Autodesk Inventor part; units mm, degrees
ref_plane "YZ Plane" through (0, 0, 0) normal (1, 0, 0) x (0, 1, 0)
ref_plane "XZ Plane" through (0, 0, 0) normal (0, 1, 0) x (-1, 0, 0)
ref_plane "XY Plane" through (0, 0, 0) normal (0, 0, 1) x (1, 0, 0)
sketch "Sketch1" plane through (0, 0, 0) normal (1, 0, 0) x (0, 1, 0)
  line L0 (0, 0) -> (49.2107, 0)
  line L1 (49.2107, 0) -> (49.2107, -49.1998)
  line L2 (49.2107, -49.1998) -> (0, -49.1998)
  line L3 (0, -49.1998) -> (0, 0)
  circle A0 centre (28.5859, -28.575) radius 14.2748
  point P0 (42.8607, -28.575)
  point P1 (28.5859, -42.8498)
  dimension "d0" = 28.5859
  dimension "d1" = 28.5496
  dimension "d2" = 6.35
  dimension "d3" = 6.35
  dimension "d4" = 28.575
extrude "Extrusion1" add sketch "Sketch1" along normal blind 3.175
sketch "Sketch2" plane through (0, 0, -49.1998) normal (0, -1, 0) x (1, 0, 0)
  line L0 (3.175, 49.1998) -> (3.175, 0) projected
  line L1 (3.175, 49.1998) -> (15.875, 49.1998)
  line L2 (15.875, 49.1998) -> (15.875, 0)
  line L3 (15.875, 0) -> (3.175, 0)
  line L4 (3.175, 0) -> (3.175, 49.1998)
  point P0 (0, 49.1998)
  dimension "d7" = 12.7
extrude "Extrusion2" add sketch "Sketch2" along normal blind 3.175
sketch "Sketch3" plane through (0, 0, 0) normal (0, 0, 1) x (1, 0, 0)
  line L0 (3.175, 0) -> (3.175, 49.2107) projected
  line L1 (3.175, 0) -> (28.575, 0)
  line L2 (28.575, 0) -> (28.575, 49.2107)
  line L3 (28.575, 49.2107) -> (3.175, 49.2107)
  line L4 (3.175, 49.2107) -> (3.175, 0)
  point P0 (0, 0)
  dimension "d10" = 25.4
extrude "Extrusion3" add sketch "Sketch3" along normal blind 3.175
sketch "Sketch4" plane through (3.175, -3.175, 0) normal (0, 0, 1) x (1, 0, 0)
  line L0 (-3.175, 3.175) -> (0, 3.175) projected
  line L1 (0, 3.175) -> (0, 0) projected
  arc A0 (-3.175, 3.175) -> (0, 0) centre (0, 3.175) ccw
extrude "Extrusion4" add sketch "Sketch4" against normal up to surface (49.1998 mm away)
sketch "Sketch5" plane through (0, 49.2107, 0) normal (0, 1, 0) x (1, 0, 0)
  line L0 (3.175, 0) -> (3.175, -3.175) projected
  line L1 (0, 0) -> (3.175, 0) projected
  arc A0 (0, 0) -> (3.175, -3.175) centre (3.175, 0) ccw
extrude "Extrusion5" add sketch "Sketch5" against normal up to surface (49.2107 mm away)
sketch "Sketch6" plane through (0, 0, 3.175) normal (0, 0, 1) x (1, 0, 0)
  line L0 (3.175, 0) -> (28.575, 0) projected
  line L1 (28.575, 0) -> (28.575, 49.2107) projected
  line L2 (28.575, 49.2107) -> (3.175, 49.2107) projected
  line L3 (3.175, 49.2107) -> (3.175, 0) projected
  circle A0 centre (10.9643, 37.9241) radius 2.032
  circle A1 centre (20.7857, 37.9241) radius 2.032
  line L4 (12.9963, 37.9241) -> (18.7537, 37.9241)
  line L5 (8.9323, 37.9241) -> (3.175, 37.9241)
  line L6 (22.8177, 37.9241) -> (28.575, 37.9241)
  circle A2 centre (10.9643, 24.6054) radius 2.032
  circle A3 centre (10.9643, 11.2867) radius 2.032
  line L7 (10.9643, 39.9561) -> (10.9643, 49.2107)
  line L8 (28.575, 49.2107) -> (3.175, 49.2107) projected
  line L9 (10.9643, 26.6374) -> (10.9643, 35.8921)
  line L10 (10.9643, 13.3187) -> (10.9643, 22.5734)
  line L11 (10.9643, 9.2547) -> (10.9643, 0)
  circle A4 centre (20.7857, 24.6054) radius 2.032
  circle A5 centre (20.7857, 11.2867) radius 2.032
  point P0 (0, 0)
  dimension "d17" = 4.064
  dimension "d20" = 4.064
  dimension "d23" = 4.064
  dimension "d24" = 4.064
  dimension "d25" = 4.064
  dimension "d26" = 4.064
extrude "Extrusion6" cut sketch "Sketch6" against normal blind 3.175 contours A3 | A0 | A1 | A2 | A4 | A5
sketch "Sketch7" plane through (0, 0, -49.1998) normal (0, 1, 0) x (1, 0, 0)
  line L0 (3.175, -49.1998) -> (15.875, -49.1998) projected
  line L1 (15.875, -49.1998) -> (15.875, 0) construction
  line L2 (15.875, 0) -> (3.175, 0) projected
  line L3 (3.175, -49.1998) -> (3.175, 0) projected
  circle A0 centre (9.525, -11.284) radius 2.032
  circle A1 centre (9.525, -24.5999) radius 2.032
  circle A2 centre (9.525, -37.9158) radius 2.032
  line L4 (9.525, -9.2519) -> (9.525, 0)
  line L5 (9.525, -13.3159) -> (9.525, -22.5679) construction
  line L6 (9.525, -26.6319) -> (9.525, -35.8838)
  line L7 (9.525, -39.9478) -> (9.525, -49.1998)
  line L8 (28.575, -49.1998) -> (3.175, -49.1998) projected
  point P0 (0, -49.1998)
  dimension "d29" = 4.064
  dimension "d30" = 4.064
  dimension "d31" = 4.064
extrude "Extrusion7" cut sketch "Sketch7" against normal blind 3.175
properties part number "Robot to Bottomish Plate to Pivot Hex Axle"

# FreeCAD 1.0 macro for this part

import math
import FreeCAD as App
import Part
import Sketcher

V = App.Vector
Q = App.Units.Quantity

doc = App.newDocument("Part")
body = doc.addObject("PartDesign::Body", "Body")
body.AllowCompound = True

# Sketch on YZ plane
sketch1 = body.newObject("Sketcher::SketchObject", "Sketch")
sketch1.AttachmentSupport = (doc.getObject("YZ_Plane"), [""])
sketch1.MapMode = "FlatFace"
sketch1.addGeometry(Part.LineSegment(V(49, 0, 0), V(0, 0, 0)), False)
sketch1.addGeometry(Part.LineSegment(V(0, 0, 0), V(0, -49, 0)), False)
sketch1.addGeometry(Part.LineSegment(V(0, -49, 0), V(49, -49, 0)), False)
sketch1.addGeometry(Part.LineSegment(V(49, -49, 0), V(49, 0, 0)), False)
sketch1.addGeometry(Part.Circle(V(29, -29, 0), V(0, 0, 1), 14), False)
sketch1.addConstraint(Sketcher.Constraint("Coincident", 0, 2, 1, 1))
sketch1.addConstraint(Sketcher.Constraint("Coincident", 1, 2, 2, 1))
sketch1.addConstraint(Sketcher.Constraint("Coincident", 2, 2, 3, 1))
sketch1.addConstraint(Sketcher.Constraint("Coincident", 3, 2, 0, 1))
sketch1.addConstraint(Sketcher.Constraint("Horizontal", 0))
sketch1.addConstraint(Sketcher.Constraint("Vertical", 1))
sketch1.addConstraint(Sketcher.Constraint("Horizontal", 2))
sketch1.addConstraint(Sketcher.Constraint("Vertical", 3))
sketch1.addConstraint(Sketcher.Constraint("Coincident", 0, 2, -1, 1))
sketch1.addConstraint(Sketcher.Constraint("Diameter", 4, Q("1.124 in")))
sketch1.addConstraint(Sketcher.Constraint("DistanceY", 4, 3, -1, 1, Q("1.125 in")))
sketch1.addConstraint(Sketcher.Constraint("DistanceY", 1, 2, 1, 1, Q("1.937 in")))
sketch1.addConstraint(Sketcher.Constraint("DistanceX", -1, 1, 4, 3, 28.586))
sketch1.addConstraint(Sketcher.Constraint("DistanceX", 4, 3, 2, 2, Q("0.812 in")))
pad1 = body.newObject("PartDesign::Pad", "Pad")
pad1.Profile = sketch1
pad1.Length = Q("0.125 in")

# Sketch on XZ plane
sketch2 = body.newObject("Sketcher::SketchObject", "Sketch001")
sketch2.AttachmentSupport = (doc.getObject("XZ_Plane"), [""])
sketch2.MapMode = "FlatFace"
sketch2.addGeometry(Part.LineSegment(V(16, 0, 0), V(3, 0, 0)), False)
sketch2.addGeometry(Part.LineSegment(V(3, 0, 0), V(3, -49, 0)), False)
sketch2.addGeometry(Part.LineSegment(V(3, -49, 0), V(16, -49, 0)), False)
sketch2.addGeometry(Part.LineSegment(V(16, -49, 0), V(16, 0, 0)), False)
sketch2.addConstraint(Sketcher.Constraint("Coincident", 0, 2, 1, 1))
sketch2.addConstraint(Sketcher.Constraint("Coincident", 1, 2, 2, 1))
sketch2.addConstraint(Sketcher.Constraint("Coincident", 2, 2, 3, 1))
sketch2.addConstraint(Sketcher.Constraint("Coincident", 3, 2, 0, 1))
sketch2.addConstraint(Sketcher.Constraint("Horizontal", 0))
sketch2.addConstraint(Sketcher.Constraint("Vertical", 1))
sketch2.addConstraint(Sketcher.Constraint("Horizontal", 2))
sketch2.addConstraint(Sketcher.Constraint("Vertical", 3))
sketch2.addConstraint(Sketcher.Constraint("PointOnObject", 0, 2, -1))
sketch2.addConstraint(Sketcher.Constraint("DistanceX", 0, 2, 0, 1, Q("0.5 in")))
sketch2.addConstraint(Sketcher.Constraint("DistanceY", 1, 2, 1, 1, Q("1.937 in")))
sketch2.addConstraint(Sketcher.Constraint("DistanceX", -1, 1, 0, 2, Q("0.125 in")))
pad2 = body.newObject("PartDesign::Pad", "Pad001")
pad2.Profile = sketch2
pad2.Length = Q("0.125 in")

# Sketch on XY plane
sketch3 = body.newObject("Sketcher::SketchObject", "Sketch002")
sketch3.AttachmentSupport = (doc.getObject("XY_Plane"), [""])
sketch3.MapMode = "FlatFace"
sketch3.addGeometry(Part.LineSegment(V(3, 49, 0), V(3, 0, 0)), False)
sketch3.addGeometry(Part.LineSegment(V(3, 0, 0), V(29, 0, 0)), False)
sketch3.addGeometry(Part.LineSegment(V(29, 0, 0), V(29, 49, 0)), False)
sketch3.addGeometry(Part.LineSegment(V(29, 49, 0), V(3, 49, 0)), False)
sketch3.addConstraint(Sketcher.Constraint("Coincident", 0, 2, 1, 1))
sketch3.addConstraint(Sketcher.Constraint("Coincident", 1, 2, 2, 1))
sketch3.addConstraint(Sketcher.Constraint("Coincident", 2, 2, 3, 1))
sketch3.addConstraint(Sketcher.Constraint("Coincident", 3, 2, 0, 1))
sketch3.addConstraint(Sketcher.Constraint("Vertical", 0))
sketch3.addConstraint(Sketcher.Constraint("Horizontal", 1))
sketch3.addConstraint(Sketcher.Constraint("Vertical", 2))
sketch3.addConstraint(Sketcher.Constraint("Horizontal", 3))
sketch3.addConstraint(Sketcher.Constraint("PointOnObject", 0, 2, -1))
sketch3.addConstraint(Sketcher.Constraint("DistanceX", 1, 1, 1, 2, Q("1 in")))
sketch3.addConstraint(Sketcher.Constraint("DistanceX", -1, 1, 0, 2, Q("0.125 in")))
sketch3.addConstraint(Sketcher.Constraint("DistanceY", 0, 2, 0, 1, 49.2107))
pad3 = body.newObject("PartDesign::Pad", "Pad002")
pad3.Profile = sketch3
pad3.Length = Q("0.125 in")

# Sketch on XY plane
sketch4 = body.newObject("Sketcher::SketchObject", "Sketch003")
sketch4.AttachmentSupport = (doc.getObject("XY_Plane"), [""])
sketch4.MapMode = "FlatFace"
sketch4.addGeometry(Part.LineSegment(V(3.2, 0, 0), V(0, 0, 0)), False)
sketch4.addGeometry(Part.ArcOfCircle(Part.Circle(V(3.2, 0, 0), V(0, 0, 1), 3.2), math.radians(180), math.radians(270)), False)
sketch4.addGeometry(Part.LineSegment(V(3.2, -3.2, 0), V(3.2, 0, 0)), False)
sketch4.addConstraint(Sketcher.Constraint("Coincident", 0, 2, 1, 1))
sketch4.addConstraint(Sketcher.Constraint("Coincident", 1, 2, 2, 1))
sketch4.addConstraint(Sketcher.Constraint("Coincident", 2, 2, 0, 1))
sketch4.addConstraint(Sketcher.Constraint("Horizontal", 0))
sketch4.addConstraint(Sketcher.Constraint("Vertical", 2))
sketch4.addConstraint(Sketcher.Constraint("Coincident", 0, 2, -1, 1))
sketch4.addConstraint(Sketcher.Constraint("Coincident", 2, 2, 1, 3))
sketch4.addConstraint(Sketcher.Constraint("Radius", 1, Q("0.125 in")))
pad4 = body.newObject("PartDesign::Pad", "Pad003")
pad4.Profile = sketch4
pad4.Length = Q("1.937 in")
pad4.Reversed = True

# Sketch on XZ plane
sketch5 = body.newObject("Sketcher::SketchObject", "Sketch004")
sketch5.AttachmentSupport = (doc.getObject("XZ_Plane"), [""])
sketch5.MapMode = "FlatFace"
sketch5.AttachmentOffset = App.Placement(V(0, 0, -49.2107), App.Rotation())
sketch5.addGeometry(Part.LineSegment(V(3.2, 3.2, 0), V(3.2, 0, 0)), False)
sketch5.addGeometry(Part.LineSegment(V(3.2, 0, 0), V(0, 0, 0)), False)
sketch5.addGeometry(Part.ArcOfCircle(Part.Circle(V(3.2, 0, 0), V(0, 0, 1), 3.2), math.radians(90), math.radians(180)), False)
sketch5.addConstraint(Sketcher.Constraint("Coincident", 0, 2, 1, 1))
sketch5.addConstraint(Sketcher.Constraint("Coincident", 1, 2, 2, 2))
sketch5.addConstraint(Sketcher.Constraint("Coincident", 2, 1, 0, 1))
sketch5.addConstraint(Sketcher.Constraint("Vertical", 0))
sketch5.addConstraint(Sketcher.Constraint("Horizontal", 1))
sketch5.addConstraint(Sketcher.Constraint("Coincident", 1, 2, -1, 1))
sketch5.addConstraint(Sketcher.Constraint("Coincident", 0, 2, 2, 3))
sketch5.addConstraint(Sketcher.Constraint("Radius", 2, Q("0.125 in")))
pad5 = body.newObject("PartDesign::Pad", "Pad004")
pad5.Profile = sketch5
pad5.Length = 49.2107

# Sketch on XY plane
sketch6 = body.newObject("Sketcher::SketchObject", "Sketch005")
sketch6.AttachmentSupport = (doc.getObject("XY_Plane"), [""])
sketch6.MapMode = "FlatFace"
sketch6.AttachmentOffset = App.Placement(V(0, 0, 0.125 * 25.4), App.Rotation())
sketch6.addGeometry(Part.Circle(V(11, 11.3, 0), V(0, 0, 1), 2), False)
sketch6.addGeometry(Part.Circle(V(11, 37.9, 0), V(0, 0, 1), 2), False)
sketch6.addGeometry(Part.Circle(V(20.8, 37.9, 0), V(0, 0, 1), 2), False)
sketch6.addGeometry(Part.Circle(V(11, 24.6, 0), V(0, 0, 1), 2), False)
sketch6.addGeometry(Part.Circle(V(20.8, 24.6, 0), V(0, 0, 1), 2), False)
sketch6.addGeometry(Part.Circle(V(20.8, 11.3, 0), V(0, 0, 1), 2), False)
sketch6.addConstraint(Sketcher.Constraint("Equal", 0, 1))
sketch6.addConstraint(Sketcher.Constraint("Equal", 1, 2))
sketch6.addConstraint(Sketcher.Constraint("Equal", 2, 3))
sketch6.addConstraint(Sketcher.Constraint("Equal", 3, 4))
sketch6.addConstraint(Sketcher.Constraint("Equal", 4, 5))
sketch6.addConstraint(Sketcher.Constraint("Horizontal", 1, 3, 2, 3))
sketch6.addConstraint(Sketcher.Constraint("Horizontal", 3, 3, 4, 3))
sketch6.addConstraint(Sketcher.Constraint("Horizontal", 0, 3, 5, 3))
sketch6.addConstraint(Sketcher.Constraint("Vertical", 0, 3, 1, 3))
sketch6.addConstraint(Sketcher.Constraint("Vertical", 1, 3, 3, 3))
sketch6.addConstraint(Sketcher.Constraint("Vertical", 2, 3, 4, 3))
sketch6.addConstraint(Sketcher.Constraint("Vertical", 4, 3, 5, 3))
sketch6.addConstraint(Sketcher.Constraint("Diameter", 0, Q("0.16 in")))
sketch6.addConstraint(Sketcher.Constraint("DistanceX", -1, 1, 0, 3, 10.9643))
sketch6.addConstraint(Sketcher.Constraint("DistanceY", -1, 1, 0, 3, 11.2867))
sketch6.addConstraint(Sketcher.Constraint("DistanceY", -1, 1, 1, 3, 37.924))
sketch6.addConstraint(Sketcher.Constraint("DistanceX", -1, 1, 2, 3, 20.7857))
sketch6.addConstraint(Sketcher.Constraint("DistanceY", -1, 1, 3, 3, 24.6054))
pocket1 = body.newObject("PartDesign::Pocket", "Pocket")
pocket1.Profile = sketch6
pocket1.Length = Q("0.125 in")

# Sketch on XZ plane
sketch7 = body.newObject("Sketcher::SketchObject", "Sketch006")
sketch7.AttachmentSupport = (doc.getObject("XZ_Plane"), [""])
sketch7.MapMode = "FlatFace"
sketch7.addGeometry(Part.Circle(V(9.5, -24.6, 0), V(0, 0, 1), 2), False)
sketch7.addGeometry(Part.Circle(V(9.5, -11.3, 0), V(0, 0, 1), 2), False)
sketch7.addGeometry(Part.Circle(V(9.5, -37.9, 0), V(0, 0, 1), 2), False)
sketch7.addConstraint(Sketcher.Constraint("Equal", 0, 1))
sketch7.addConstraint(Sketcher.Constraint("Equal", 1, 2))
sketch7.addConstraint(Sketcher.Constraint("Vertical", 0, 3, 1, 3))
sketch7.addConstraint(Sketcher.Constraint("Vertical", 1, 3, 2, 3))
sketch7.addConstraint(Sketcher.Constraint("Diameter", 0, Q("0.16 in")))
sketch7.addConstraint(Sketcher.Constraint("DistanceX", -1, 1, 0, 3, Q("0.375 in")))
sketch7.addConstraint(Sketcher.Constraint("DistanceY", 0, 3, -1, 1, Q("0.9685 in")))
sketch7.addConstraint(Sketcher.Constraint("DistanceY", 2, 3, 1, 3, Q("1.0485 in")))
sketch7.addConstraint(Sketcher.Constraint("DistanceY", 1, 3, -1, 1, 11.284))
pocket2 = body.newObject("PartDesign::Pocket", "Pocket001")
pocket2.Profile = sketch7
pocket2.Length = Q("0.125 in")
pocket2.Reversed = True

doc.recompute()
